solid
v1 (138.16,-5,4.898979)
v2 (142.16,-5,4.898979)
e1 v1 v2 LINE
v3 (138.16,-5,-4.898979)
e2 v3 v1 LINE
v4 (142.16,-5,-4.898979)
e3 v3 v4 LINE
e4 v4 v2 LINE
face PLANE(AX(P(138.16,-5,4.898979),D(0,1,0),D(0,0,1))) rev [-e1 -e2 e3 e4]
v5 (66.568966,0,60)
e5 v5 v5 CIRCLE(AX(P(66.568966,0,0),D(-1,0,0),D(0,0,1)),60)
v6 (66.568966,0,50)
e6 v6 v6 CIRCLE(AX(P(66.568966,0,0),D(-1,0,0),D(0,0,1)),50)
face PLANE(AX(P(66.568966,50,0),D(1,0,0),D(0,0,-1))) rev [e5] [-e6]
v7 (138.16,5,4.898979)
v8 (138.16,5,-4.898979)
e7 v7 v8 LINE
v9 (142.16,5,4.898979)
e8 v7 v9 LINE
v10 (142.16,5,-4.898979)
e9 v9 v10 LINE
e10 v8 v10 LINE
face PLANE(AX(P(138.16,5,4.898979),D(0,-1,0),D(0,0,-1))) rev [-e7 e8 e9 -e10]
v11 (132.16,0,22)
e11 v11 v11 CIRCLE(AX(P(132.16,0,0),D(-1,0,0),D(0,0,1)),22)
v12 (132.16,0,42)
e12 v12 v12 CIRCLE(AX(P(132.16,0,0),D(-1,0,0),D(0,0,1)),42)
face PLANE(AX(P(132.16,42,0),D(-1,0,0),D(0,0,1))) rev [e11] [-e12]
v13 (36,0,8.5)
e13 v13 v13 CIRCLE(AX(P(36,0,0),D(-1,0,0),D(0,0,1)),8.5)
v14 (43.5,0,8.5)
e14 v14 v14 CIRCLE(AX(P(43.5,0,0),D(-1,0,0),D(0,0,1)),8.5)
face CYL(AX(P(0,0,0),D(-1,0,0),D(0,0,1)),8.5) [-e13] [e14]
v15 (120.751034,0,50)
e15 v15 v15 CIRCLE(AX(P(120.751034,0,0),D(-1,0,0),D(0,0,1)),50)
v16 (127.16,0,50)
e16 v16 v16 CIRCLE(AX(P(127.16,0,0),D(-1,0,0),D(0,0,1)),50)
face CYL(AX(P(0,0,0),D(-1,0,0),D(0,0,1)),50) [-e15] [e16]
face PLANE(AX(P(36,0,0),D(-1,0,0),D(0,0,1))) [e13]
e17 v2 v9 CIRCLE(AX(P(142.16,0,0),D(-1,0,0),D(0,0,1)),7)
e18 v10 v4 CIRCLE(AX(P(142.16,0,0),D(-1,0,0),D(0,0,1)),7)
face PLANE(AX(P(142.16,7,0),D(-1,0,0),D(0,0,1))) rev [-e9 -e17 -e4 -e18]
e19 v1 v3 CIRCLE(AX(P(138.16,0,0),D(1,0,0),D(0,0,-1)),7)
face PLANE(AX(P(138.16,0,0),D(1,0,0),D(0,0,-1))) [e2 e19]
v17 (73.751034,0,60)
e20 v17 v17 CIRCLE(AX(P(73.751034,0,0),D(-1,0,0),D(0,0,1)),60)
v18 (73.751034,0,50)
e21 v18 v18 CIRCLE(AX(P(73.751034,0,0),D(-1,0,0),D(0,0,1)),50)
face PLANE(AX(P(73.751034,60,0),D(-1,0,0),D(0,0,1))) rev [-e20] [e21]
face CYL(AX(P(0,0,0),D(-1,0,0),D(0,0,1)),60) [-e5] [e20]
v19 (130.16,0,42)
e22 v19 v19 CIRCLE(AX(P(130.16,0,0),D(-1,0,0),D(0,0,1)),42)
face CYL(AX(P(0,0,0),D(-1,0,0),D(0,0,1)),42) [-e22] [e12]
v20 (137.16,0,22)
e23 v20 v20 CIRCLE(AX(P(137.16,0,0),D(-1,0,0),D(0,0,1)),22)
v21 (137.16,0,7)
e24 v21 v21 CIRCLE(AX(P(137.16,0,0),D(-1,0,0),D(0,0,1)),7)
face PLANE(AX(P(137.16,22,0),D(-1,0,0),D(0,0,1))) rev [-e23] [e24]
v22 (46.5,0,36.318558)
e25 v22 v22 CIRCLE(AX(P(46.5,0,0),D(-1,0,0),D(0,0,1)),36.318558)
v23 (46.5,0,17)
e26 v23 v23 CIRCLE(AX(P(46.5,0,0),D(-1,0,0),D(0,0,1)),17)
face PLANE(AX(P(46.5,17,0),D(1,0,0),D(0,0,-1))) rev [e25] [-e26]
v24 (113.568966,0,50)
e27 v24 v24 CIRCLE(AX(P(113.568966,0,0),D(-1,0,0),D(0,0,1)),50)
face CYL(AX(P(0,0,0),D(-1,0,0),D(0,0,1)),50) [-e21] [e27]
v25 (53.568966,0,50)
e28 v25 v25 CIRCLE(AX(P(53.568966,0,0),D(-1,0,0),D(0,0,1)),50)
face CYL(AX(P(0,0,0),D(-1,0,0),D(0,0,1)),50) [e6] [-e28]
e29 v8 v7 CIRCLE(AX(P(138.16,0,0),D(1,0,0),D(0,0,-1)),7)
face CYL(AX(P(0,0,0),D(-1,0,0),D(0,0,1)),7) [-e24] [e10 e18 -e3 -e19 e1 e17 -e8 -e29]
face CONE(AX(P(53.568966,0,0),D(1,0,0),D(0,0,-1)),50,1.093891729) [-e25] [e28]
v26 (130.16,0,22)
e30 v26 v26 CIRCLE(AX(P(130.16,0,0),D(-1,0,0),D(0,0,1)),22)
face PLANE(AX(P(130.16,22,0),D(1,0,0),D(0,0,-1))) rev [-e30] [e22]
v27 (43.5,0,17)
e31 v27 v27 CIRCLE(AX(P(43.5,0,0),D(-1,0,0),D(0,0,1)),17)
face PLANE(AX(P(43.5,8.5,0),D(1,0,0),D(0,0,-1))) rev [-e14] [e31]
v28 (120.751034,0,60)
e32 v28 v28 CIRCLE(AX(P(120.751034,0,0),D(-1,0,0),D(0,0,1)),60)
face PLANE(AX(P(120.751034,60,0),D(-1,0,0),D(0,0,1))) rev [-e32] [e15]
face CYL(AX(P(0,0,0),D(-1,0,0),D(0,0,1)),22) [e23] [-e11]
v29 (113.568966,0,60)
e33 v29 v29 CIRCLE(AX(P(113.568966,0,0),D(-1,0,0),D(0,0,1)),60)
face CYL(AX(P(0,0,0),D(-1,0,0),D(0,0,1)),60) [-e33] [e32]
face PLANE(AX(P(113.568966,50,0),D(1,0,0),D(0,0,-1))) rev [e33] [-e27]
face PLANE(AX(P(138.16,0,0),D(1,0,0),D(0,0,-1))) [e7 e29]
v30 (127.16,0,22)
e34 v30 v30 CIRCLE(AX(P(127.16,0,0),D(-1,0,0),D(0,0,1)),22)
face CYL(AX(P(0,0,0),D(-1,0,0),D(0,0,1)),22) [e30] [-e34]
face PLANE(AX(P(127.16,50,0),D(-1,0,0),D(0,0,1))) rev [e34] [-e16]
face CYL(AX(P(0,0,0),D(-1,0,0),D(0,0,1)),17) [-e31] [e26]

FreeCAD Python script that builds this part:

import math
import FreeCAD as App
import Part
import Sketcher

V = App.Vector


def add_polygon(sketch, points):
    """Adds a closed chain of lines whose ends are joined by coincident constraints."""
    first, n = sketch.GeometryCount, len(points)
    for a, b in zip(points, points[1:] + points[:1]):
        sketch.addGeometry(Part.LineSegment(App.Vector(*a, 0), App.Vector(*b, 0)), False)
    for i in range(n):
        sketch.addConstraint(Sketcher.Constraint("Coincident", first + i, 2, first + (i + 1) % n, 1))

doc = App.newDocument("Part")
body = doc.addObject("PartDesign::Body", "Body")

sketch1 = body.newObject("Sketcher::SketchObject", "Sketch")
sketch1.AttachmentSupport = (doc.getObject("XY_Plane"), [""])
sketch1.MapMode = "FlatFace"
add_polygon(sketch1, [(0, 6), (0, 0), (142.16, 0), (142.16, 7), (137.16, 7), (137.16, 22), (132.16, 22), (132.16, 42), (130.16, 42), (130.16, 22), (127.16, 22), (127.16, 50), (120.751034, 50), (120.751034, 60), (113.568966, 60), (113.568966, 50), (73.751034, 50), (73.751034, 60), (66.568966, 60), (66.568966, 50), (53.568966, 50), (46.5, 36.318558), (46.5, 17), (43.5, 17), (43.5, 8.5), (33, 8.5), (33, 6)])
sketch1.addConstraint([
    Sketcher.Constraint("Vertical", 0),
    Sketcher.Constraint("Horizontal", 1),
    Sketcher.Constraint("Vertical", 2),
    Sketcher.Constraint("Horizontal", 3),
    Sketcher.Constraint("Vertical", 4),
    Sketcher.Constraint("Horizontal", 5),
    Sketcher.Constraint("Vertical", 6),
    Sketcher.Constraint("Horizontal", 7),
    Sketcher.Constraint("Vertical", 8),
    Sketcher.Constraint("Horizontal", 9),
    Sketcher.Constraint("Vertical", 10),
    Sketcher.Constraint("Horizontal", 11),
    Sketcher.Constraint("Vertical", 12),
    Sketcher.Constraint("Horizontal", 13),
    Sketcher.Constraint("Vertical", 14),
    Sketcher.Constraint("Horizontal", 15),
    Sketcher.Constraint("Vertical", 16),
    Sketcher.Constraint("Horizontal", 17),
    Sketcher.Constraint("Vertical", 18),
    Sketcher.Constraint("Horizontal", 19),
    Sketcher.Constraint("Vertical", 21),
    Sketcher.Constraint("Horizontal", 22),
    Sketcher.Constraint("Vertical", 23),
    Sketcher.Constraint("Horizontal", 24),
    Sketcher.Constraint("Vertical", 25),
    Sketcher.Constraint("Horizontal", 26),
    Sketcher.Constraint("Coincident", 0, 2, -1, 1),
    Sketcher.Constraint("Horizontal", 5, 2, 8, 2),
    Sketcher.Constraint("Horizontal", 11, 2, 14, 2),
    Sketcher.Constraint("Horizontal", 13, 2, 16, 2),
    Sketcher.Constraint("Horizontal", 15, 2, 18, 2),
    Sketcher.Constraint("Equal", 3, 5),
    Sketcher.Constraint("Equal", 13, 17),
    Sketcher.Constraint("Equal", 9, 22),
    Sketcher.Constraint("DistanceX", 3, 2, 3, 1, 5.0),
    Sketcher.Constraint("DistanceX", 7, 2, 7, 1, 2.0),
    Sketcher.Constraint("DistanceX", 9, 2, 9, 1, 3.0),
    Sketcher.Constraint("DistanceX", 19, 2, 19, 1, 13.0),
    Sketcher.Constraint("DistanceX", 26, 2, 26, 1, 33.0),
    Sketcher.Constraint("DistanceY", 0, 2, 0, 1, 6.0),
    Sketcher.Constraint("DistanceY", 2, 1, 2, 2, 7.0),
    Sketcher.Constraint("DistanceY", 4, 1, 4, 2, 15.0),
    Sketcher.Constraint("DistanceY", 6, 1, 6, 2, 20.0),
    Sketcher.Constraint("DistanceY", 10, 1, 10, 2, 28.0),
    Sketcher.Constraint("DistanceY", 12, 1, 12, 2, 10.0),
    Sketcher.Constraint("DistanceX", 24, 2, 24, 1, 10.5),
    Sketcher.Constraint("DistanceY", 23, 2, 23, 1, 8.5),
    Sketcher.Constraint("DistanceY", 25, 2, 25, 1, 2.5),
    Sketcher.Constraint("DistanceX", 15, 2, 11, 2, 47.0),
    Sketcher.Constraint("DistanceX", 1, 1, 1, 2, 142.16),
    Sketcher.Constraint("DistanceX", 13, 2, 13, 1, 7.182069),
    Sketcher.Constraint("DistanceY", 21, 2, 21, 1, 19.318558),
    Sketcher.Constraint("DistanceX", 11, 2, 11, 1, 6.408966),
])
revolution = body.newObject("PartDesign::Revolution", "Revolution")
revolution.Profile = sketch1
revolution.ReferenceAxis = (sketch1, ["H_Axis"])
revolution.Angle = 360

sketch2 = body.newObject("Sketcher::SketchObject", "Sketch001")
sketch2.AttachmentSupport = (doc.getObject("YZ_Plane"), [""])
sketch2.MapMode = "FlatFace"
sketch2.AttachmentOffset = App.Placement(V(0, 0, 142.16), App.Rotation())
sketch2.addGeometry([
    Part.LineSegment(V(5, 4.898979, 0), V(5, -4.898979, 0)),
    Part.ArcOfCircle(Part.Circle(V(0, 0, 0), V(0, 0, 1), 7), math.radians(-44.415309), math.radians(44.415309)),
    Part.LineSegment(V(-5, -4.898979, 0), V(-5, 4.898979, 0)),
    Part.ArcOfCircle(Part.Circle(V(0, 0, 0), V(0, 0, 1), 7), math.radians(135.584691), math.radians(224.415309)),
], False)
sketch2.addConstraint([
    Sketcher.Constraint("Coincident", 0, 1, 1, 2),
    Sketcher.Constraint("Coincident", 1, 1, 0, 2),
    Sketcher.Constraint("Coincident", 2, 1, 3, 2),
    Sketcher.Constraint("Coincident", 3, 1, 2, 2),
    Sketcher.Constraint("Vertical", 0),
    Sketcher.Constraint("Vertical", 2),
    Sketcher.Constraint("Coincident", 1, 3, -1, 1),
    Sketcher.Constraint("Coincident", 3, 3, -1, 1),
    Sketcher.Constraint("Equal", 1, 3),
    Sketcher.Constraint("Horizontal", 1, 1, 2, 1),
    Sketcher.Constraint("Radius", 1, 7.0),
    Sketcher.Constraint("DistanceX", -1, 1, 0, 1, 5.0),
])
pocket1 = body.newObject("PartDesign::Pocket", "Pocket")
pocket1.Profile = sketch2
pocket1.Length = 4

sketch3 = body.newObject("Sketcher::SketchObject", "Sketch002")
sketch3.AttachmentSupport = (doc.getObject("YZ_Plane"), [""])
sketch3.MapMode = "FlatFace"
sketch3.AttachmentOffset = App.Placement(V(0, 0, 33), App.Rotation())
sketch3.addGeometry(Part.Circle(V(0, 0, 0), V(0, 0, 1), 8.5), False)
sketch3.addConstraint([
    Sketcher.Constraint("Coincident", 0, 3, -1, 1),
    Sketcher.Constraint("Diameter", 0, 17.0),
])
pocket2 = body.newObject("PartDesign::Pocket", "Pocket001")
pocket2.Profile = sketch3
pocket2.Type = "TwoLengths"
pocket2.Length = 139.260282
pocket2.Length2 = 3

doc.recompute()
